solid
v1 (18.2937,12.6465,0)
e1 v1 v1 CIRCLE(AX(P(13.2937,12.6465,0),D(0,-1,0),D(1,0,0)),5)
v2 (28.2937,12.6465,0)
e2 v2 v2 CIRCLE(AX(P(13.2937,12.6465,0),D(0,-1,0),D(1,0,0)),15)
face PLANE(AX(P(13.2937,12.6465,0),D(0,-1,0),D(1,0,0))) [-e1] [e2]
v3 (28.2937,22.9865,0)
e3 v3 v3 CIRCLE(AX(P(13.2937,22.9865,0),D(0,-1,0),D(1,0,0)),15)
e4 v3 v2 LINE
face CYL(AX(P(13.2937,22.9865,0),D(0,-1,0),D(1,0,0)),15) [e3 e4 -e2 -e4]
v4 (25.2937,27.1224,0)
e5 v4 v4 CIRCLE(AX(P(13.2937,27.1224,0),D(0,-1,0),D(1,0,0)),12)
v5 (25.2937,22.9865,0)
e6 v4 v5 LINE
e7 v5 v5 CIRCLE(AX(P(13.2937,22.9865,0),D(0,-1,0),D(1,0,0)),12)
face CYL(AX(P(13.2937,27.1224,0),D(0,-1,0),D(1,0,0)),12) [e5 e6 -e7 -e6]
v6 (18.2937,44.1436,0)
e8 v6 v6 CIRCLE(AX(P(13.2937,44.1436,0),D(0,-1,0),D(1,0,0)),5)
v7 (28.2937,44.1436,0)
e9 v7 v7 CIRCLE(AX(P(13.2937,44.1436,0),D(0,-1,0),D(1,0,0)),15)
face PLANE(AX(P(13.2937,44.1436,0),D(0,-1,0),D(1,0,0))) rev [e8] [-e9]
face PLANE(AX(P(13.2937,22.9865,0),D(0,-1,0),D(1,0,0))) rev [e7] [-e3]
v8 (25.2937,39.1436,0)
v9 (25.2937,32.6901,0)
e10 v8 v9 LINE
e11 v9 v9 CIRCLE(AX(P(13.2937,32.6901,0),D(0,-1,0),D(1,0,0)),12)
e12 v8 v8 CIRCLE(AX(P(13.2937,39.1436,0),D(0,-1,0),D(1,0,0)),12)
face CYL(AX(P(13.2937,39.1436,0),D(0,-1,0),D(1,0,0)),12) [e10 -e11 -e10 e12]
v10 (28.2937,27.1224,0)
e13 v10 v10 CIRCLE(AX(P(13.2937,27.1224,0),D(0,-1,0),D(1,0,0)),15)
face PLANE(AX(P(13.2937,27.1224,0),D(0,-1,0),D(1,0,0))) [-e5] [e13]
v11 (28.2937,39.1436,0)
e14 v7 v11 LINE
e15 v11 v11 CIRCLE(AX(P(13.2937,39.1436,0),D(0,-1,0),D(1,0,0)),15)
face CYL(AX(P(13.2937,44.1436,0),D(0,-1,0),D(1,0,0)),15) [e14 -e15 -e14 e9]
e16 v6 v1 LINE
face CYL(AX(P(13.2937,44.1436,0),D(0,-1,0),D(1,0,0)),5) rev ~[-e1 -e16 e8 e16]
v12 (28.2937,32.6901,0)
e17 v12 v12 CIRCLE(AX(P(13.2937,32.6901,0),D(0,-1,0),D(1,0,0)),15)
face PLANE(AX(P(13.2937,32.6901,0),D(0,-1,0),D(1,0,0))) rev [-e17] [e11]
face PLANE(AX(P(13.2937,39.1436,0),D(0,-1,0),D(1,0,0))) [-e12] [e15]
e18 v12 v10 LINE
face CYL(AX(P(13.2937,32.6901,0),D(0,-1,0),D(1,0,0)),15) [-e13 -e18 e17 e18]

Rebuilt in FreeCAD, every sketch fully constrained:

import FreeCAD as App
import Part
import Sketcher

V = App.Vector

doc = App.newDocument("Part")
body = doc.addObject("PartDesign::Body", "Body")

# Sketch on XY plane
sketch1 = body.newObject("Sketcher::SketchObject", "Sketch")
sketch1.AttachmentSupport = (doc.getObject("XY_Plane"), [""])
sketch1.MapMode = "FlatFace"
sketch1.addGeometry(Part.LineSegment(V(28.2937, 44.1436, 0), V(18.2937, 44.1436, 0)), False)
sketch1.addGeometry(Part.LineSegment(V(18.2937, 44.1436, 0), V(18.2937, 12.6465, 0)), False)
sketch1.addGeometry(Part.LineSegment(V(18.2937, 12.6465, 0), V(28.2937, 12.6465, 0)), False)
sketch1.addGeometry(Part.LineSegment(V(28.2937, 12.6465, 0), V(28.2937, 22.9865, 0)), False)
sketch1.addGeometry(Part.LineSegment(V(28.2937, 22.9865, 0), V(25.2937, 22.9865, 0)), False)
sketch1.addGeometry(Part.LineSegment(V(25.2937, 22.9865, 0), V(25.2937, 27.1224, 0)), False)
sketch1.addGeometry(Part.LineSegment(V(25.2937, 27.1224, 0), V(28.2937, 27.1224, 0)), False)
sketch1.addGeometry(Part.LineSegment(V(28.2937, 27.1224, 0), V(28.2937, 32.6901, 0)), False)
sketch1.addGeometry(Part.LineSegment(V(28.2937, 32.6901, 0), V(25.2937, 32.6901, 0)), False)
sketch1.addGeometry(Part.LineSegment(V(25.2937, 32.6901, 0), V(25.2937, 39.1436, 0)), False)
sketch1.addGeometry(Part.LineSegment(V(25.2937, 39.1436, 0), V(28.2937, 39.1436, 0)), False)
sketch1.addGeometry(Part.LineSegment(V(28.2937, 39.1436, 0), V(28.2937, 44.1436, 0)), False)
sketch1.addGeometry(Part.LineSegment(V(13.2937, 44.1436, 0), V(13.2937, 12.6465, 0)), True)  # axis
sketch1.addConstraint(Sketcher.Constraint("Coincident", 0, 2, 1, 1))
sketch1.addConstraint(Sketcher.Constraint("Coincident", 1, 2, 2, 1))
sketch1.addConstraint(Sketcher.Constraint("Coincident", 2, 2, 3, 1))
sketch1.addConstraint(Sketcher.Constraint("Coincident", 3, 2, 4, 1))
sketch1.addConstraint(Sketcher.Constraint("Coincident", 4, 2, 5, 1))
sketch1.addConstraint(Sketcher.Constraint("Coincident", 5, 2, 6, 1))
sketch1.addConstraint(Sketcher.Constraint("Coincident", 6, 2, 7, 1))
sketch1.addConstraint(Sketcher.Constraint("Coincident", 7, 2, 8, 1))
sketch1.addConstraint(Sketcher.Constraint("Coincident", 8, 2, 9, 1))
sketch1.addConstraint(Sketcher.Constraint("Coincident", 9, 2, 10, 1))
sketch1.addConstraint(Sketcher.Constraint("Coincident", 10, 2, 11, 1))
sketch1.addConstraint(Sketcher.Constraint("Coincident", 11, 2, 0, 1))
sketch1.addConstraint(Sketcher.Constraint("Horizontal", 0))
sketch1.addConstraint(Sketcher.Constraint("Vertical", 1))
sketch1.addConstraint(Sketcher.Constraint("Horizontal", 2))
sketch1.addConstraint(Sketcher.Constraint("Vertical", 3))
sketch1.addConstraint(Sketcher.Constraint("Horizontal", 4))
sketch1.addConstraint(Sketcher.Constraint("Vertical", 5))
sketch1.addConstraint(Sketcher.Constraint("Horizontal", 6))
sketch1.addConstraint(Sketcher.Constraint("Vertical", 7))
sketch1.addConstraint(Sketcher.Constraint("Horizontal", 8))
sketch1.addConstraint(Sketcher.Constraint("Vertical", 9))
sketch1.addConstraint(Sketcher.Constraint("Horizontal", 10))
sketch1.addConstraint(Sketcher.Constraint("Vertical", 11))
sketch1.addConstraint(Sketcher.Constraint("Vertical", 12))
sketch1.addConstraint(Sketcher.Constraint("Horizontal", 11, 2, 12, 1))
sketch1.addConstraint(Sketcher.Constraint("Horizontal", 2, 2, 12, 2))
sketch1.addConstraint(Sketcher.Constraint("Vertical", 3, 2, 6, 2))
sketch1.addConstraint(Sketcher.Constraint("Vertical", 5, 2, 8, 2))
sketch1.addConstraint(Sketcher.Constraint("Vertical", 7, 2, 10, 2))
sketch1.addConstraint(Sketcher.Constraint("DistanceX", 0, 2, 0, 1, 10.0))
sketch1.addConstraint(Sketcher.Constraint("DistanceX", 4, 2, 4, 1, 3.0))
sketch1.addConstraint(Sketcher.Constraint("DistanceY", 11, 1, 11, 2, 5.0))
sketch1.addConstraint(Sketcher.Constraint("DistanceX", 12, 1, 0, 2, 5.0))
sketch1.addConstraint(Sketcher.Constraint("DistanceY", 3, 1, 3, 2, 10.34))
sketch1.addConstraint(Sketcher.Constraint("DistanceY", 1, 2, 1, 1, 31.497))
sketch1.addConstraint(Sketcher.Constraint("DistanceY", 5, 1, 5, 2, 4.136))
sketch1.addConstraint(Sketcher.Constraint("DistanceY", -1, 1, 7, 2, 32.69))
sketch1.addConstraint(Sketcher.Constraint("DistanceY", 7, 1, 7, 2, 5.5677))
sketch1.addConstraint(Sketcher.Constraint("DistanceX", -1, 1, 0, 2, 18.2937))
revolution = body.newObject("PartDesign::Revolution", "Revolution")
revolution.Profile = sketch1
revolution.ReferenceAxis = (sketch1, ["Axis0"])
revolution.Angle = 360

doc.recompute()
